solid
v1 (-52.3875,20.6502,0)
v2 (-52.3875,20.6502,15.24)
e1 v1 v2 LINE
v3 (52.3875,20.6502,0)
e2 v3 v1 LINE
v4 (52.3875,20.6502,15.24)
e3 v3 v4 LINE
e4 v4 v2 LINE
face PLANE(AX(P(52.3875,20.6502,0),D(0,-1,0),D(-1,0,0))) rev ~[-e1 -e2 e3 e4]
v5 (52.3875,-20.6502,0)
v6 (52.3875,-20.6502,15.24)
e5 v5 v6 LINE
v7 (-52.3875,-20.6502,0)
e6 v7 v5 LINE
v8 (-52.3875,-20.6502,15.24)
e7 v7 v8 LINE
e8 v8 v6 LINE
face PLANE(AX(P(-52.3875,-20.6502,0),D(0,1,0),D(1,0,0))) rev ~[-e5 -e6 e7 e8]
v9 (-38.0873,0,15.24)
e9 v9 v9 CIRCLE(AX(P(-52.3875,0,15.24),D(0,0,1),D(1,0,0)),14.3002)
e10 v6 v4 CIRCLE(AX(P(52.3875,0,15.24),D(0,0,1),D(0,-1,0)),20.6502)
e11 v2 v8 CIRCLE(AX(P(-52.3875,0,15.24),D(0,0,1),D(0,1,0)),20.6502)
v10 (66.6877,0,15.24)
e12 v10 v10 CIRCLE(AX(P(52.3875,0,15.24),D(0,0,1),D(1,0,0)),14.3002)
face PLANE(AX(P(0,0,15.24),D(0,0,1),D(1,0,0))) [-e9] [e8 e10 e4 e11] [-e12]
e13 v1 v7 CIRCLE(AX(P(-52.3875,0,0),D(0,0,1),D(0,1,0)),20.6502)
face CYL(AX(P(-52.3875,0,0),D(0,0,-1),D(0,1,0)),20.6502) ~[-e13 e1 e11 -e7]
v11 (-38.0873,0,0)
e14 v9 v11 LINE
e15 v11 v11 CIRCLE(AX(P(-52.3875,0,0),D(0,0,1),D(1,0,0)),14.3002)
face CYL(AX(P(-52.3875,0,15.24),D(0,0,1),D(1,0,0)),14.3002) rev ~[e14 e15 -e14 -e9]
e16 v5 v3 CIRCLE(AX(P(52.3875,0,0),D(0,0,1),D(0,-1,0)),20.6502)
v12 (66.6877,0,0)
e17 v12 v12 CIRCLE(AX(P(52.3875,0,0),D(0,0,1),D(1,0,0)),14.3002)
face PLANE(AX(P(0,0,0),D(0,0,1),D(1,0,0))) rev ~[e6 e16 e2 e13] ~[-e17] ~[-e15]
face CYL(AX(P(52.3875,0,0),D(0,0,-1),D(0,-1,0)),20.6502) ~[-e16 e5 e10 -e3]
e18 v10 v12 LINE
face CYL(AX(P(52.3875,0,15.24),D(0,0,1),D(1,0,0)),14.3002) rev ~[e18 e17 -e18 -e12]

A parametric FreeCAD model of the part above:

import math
import FreeCAD as App
import Part
import Sketcher
from FreeCAD import Vector
Q = App.Units.Quantity

doc = App.newDocument("Part")
params = doc.addObject("Spreadsheet::Sheet", "Params")
for row, (alias, value) in enumerate([
    ("sketch1_radius", "0.813 in"),
    ("sketch1_width", "4.125 in"),
    ("pad1_length", "0.6 in"),
    ("sketch2_diameter", "1.126 in"),
], start=1):
    params.set(f"A{row}", alias)
    params.set(f"B{row}", "=" + value)
    params.setAlias(f"B{row}", alias)

body = doc.addObject("PartDesign::Body", "Body")

# Sketch on XY plane
sketch1 = body.newObject("Sketcher::SketchObject", "Sketch")
sketch1.AttachmentSupport = (doc.getObject("XY_Plane"), [""])
sketch1.MapMode = "FlatFace"
sketch1.addGeometry([
    Part.ArcOfCircle(Part.Circle(Vector(-52, 0, 0), Vector(0, 0, 1), 21), math.radians(90), math.radians(270)),
    Part.LineSegment(Vector(-52, -21, 0), Vector(52, -21, 0)),
    Part.ArcOfCircle(Part.Circle(Vector(52, 0, 0), Vector(0, 0, 1), 21), math.radians(-90), math.radians(90)),
    Part.LineSegment(Vector(52, 21, 0), Vector(-52, 21, 0)),
], False)
sketch1.addConstraint([
    Sketcher.Constraint("Tangent", 0, 2, 1, 1),
    Sketcher.Constraint("Tangent", 1, 2, 2, 1),
    Sketcher.Constraint("Tangent", 2, 2, 3, 1),
    Sketcher.Constraint("Tangent", 3, 2, 0, 1),
    Sketcher.Constraint("Horizontal", 1),
    Sketcher.Constraint("Horizontal", 3),
    Sketcher.Constraint("Symmetric", 0, 3, 2, 3, -1, 1),
    Sketcher.Constraint("Radius", 0, Q("0.813 in")),
    Sketcher.Constraint("DistanceX", 1, 1, 1, 2, Q("4.125 in")),
])
sketch1.setExpression("Constraints[7]", "Params.sketch1_radius")
sketch1.setExpression("Constraints[8]", "Params.sketch1_width")
pad1 = body.newObject("PartDesign::Pad", "Pad")
pad1.Profile = sketch1
pad1.setExpression("Length", "Params.pad1_length")

# Sketch on XY plane
sketch2 = body.newObject("Sketcher::SketchObject", "Sketch001")
sketch2.AttachmentSupport = (doc.getObject("XY_Plane"), [""])
sketch2.MapMode = "FlatFace"
sketch2.AttachmentOffset = App.Placement(Vector(0, 0, 0.6 * 25.4), App.Rotation())
sketch2.addGeometry([
    Part.Circle(Vector(-52, 0, 0), Vector(0, 0, 1), 14),
    Part.Circle(Vector(52, 0, 0), Vector(0, 0, 1), 14),
], False)
sketch2.addConstraint([
    Sketcher.Constraint("Equal", 0, 1),
    Sketcher.Constraint("Symmetric", 0, 3, 1, 3, -1, 1),
    Sketcher.Constraint("PointOnObject", 0, 3, -1),
    Sketcher.Constraint("Diameter", 0, Q("1.126 in")),
    Sketcher.Constraint("DistanceX", 0, 3, -1, 1, Q("2.0625 in")),
])
sketch2.setExpression("Constraints[3]", "Params.sketch2_diameter")
pocket1 = body.newObject("PartDesign::Pocket", "Pocket")
pocket1.Profile = sketch2
pocket1.Type = "ThroughAll"

doc.recompute()
